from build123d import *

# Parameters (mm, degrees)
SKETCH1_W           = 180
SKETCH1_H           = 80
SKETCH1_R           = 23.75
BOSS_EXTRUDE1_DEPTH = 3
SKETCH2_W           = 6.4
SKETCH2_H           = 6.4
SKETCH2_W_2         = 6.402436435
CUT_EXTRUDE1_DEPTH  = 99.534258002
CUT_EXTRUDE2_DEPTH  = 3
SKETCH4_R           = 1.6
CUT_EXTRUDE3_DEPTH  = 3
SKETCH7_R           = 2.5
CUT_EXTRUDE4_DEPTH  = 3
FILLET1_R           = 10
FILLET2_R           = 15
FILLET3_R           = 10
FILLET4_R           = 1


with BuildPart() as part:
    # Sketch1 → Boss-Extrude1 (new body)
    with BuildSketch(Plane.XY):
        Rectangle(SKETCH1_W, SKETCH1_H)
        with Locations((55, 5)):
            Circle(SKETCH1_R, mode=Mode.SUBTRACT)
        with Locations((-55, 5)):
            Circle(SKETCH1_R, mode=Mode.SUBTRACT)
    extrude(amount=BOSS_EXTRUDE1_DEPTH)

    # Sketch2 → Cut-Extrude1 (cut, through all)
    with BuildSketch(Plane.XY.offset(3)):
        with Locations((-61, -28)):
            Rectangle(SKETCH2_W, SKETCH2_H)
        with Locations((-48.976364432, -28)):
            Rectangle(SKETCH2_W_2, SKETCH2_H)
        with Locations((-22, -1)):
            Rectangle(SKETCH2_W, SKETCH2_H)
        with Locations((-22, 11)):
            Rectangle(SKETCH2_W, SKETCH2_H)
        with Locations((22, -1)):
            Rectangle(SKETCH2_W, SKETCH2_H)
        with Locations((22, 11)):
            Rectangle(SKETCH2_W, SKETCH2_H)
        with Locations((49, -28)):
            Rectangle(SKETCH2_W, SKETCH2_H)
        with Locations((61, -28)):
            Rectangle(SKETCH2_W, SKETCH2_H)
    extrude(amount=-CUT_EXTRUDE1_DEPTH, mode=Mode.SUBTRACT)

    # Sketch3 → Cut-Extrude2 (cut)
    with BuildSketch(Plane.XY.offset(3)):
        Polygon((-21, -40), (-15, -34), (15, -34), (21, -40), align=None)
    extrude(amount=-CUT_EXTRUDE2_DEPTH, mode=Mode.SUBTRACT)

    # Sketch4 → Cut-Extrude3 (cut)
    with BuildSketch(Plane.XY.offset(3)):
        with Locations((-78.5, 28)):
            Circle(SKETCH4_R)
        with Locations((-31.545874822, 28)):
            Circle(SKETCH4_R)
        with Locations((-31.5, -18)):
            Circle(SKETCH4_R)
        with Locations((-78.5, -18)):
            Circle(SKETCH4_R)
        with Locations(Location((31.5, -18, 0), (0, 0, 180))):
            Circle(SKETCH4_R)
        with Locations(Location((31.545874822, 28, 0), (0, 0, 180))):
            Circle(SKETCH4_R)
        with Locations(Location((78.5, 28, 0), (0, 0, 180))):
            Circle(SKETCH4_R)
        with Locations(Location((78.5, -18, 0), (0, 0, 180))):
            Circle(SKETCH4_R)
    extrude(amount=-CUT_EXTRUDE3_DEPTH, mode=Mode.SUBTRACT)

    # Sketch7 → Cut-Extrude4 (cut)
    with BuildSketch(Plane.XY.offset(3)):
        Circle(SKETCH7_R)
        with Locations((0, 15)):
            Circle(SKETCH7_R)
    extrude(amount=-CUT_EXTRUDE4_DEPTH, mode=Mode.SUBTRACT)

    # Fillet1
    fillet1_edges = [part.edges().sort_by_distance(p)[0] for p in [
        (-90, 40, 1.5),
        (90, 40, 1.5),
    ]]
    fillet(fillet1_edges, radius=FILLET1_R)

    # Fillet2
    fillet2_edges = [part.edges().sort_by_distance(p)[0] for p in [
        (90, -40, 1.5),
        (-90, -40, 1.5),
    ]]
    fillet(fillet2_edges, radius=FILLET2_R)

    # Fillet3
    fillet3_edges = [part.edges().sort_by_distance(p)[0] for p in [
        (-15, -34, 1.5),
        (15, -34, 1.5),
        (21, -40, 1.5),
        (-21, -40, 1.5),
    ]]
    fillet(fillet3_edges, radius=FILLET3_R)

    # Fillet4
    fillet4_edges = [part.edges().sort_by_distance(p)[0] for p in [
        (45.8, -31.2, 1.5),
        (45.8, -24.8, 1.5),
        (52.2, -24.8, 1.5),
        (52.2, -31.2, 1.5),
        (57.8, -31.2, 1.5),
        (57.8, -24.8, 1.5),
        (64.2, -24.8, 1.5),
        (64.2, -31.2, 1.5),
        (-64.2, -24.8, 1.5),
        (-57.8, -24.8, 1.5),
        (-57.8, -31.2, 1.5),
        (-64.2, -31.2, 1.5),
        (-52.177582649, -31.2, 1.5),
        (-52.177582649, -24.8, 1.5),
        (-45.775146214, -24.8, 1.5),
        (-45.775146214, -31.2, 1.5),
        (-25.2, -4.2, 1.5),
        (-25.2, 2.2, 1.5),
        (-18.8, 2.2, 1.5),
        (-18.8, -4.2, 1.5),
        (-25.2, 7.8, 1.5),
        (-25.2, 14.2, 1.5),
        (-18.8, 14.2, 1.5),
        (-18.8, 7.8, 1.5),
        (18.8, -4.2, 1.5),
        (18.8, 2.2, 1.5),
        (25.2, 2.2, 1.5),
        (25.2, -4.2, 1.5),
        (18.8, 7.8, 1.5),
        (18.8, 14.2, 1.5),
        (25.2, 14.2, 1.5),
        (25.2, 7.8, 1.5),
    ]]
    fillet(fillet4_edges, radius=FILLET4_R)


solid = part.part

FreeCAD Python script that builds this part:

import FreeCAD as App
import Part
import Sketcher
from FreeCAD import Vector
Q = App.Units.Quantity


def edges_at(feature, points):
    """Names of the edges that pass closest to the given points."""
    edges = feature.Shape.Edges
    near = lambda p: min(range(len(edges)), key=lambda i: edges[i].distToShape(Part.Vertex(*p))[0])
    return sorted({f"Edge{near(p) + 1}" for p in points})

doc = App.newDocument("Part")
params = doc.addObject("Spreadsheet::Sheet", "Params")
for row, (alias, value) in enumerate([
    ("sketch1_diameter", "47.5 mm"),
    ("sketch1_width", "180 mm"),
    ("sketch1_height", "80 mm"),
    ("pad1_length", "3 mm"),
    ("sketch2_width", "6.4 mm"),
    ("sketch3_width", "42 mm"),
    ("sketch3_width2", "30 mm"),
    ("pocket2_length", "3 mm"),
    ("sketch4_diameter", "3.2 mm"),
    ("pocket3_length", "3 mm"),
    ("sketch5_diameter", "5 mm"),
    ("pocket4_length", "3 mm"),
    ("fillet_radius", "10 mm"),
    ("fillet2_radius", "15 mm"),
    ("fillet3_radius", "10 mm"),
    ("fillet4_radius", "1 mm"),
], start=1):
    params.set(f"A{row}", alias)
    params.set(f"B{row}", "=" + value)
    params.setAlias(f"B{row}", alias)

body = doc.addObject("PartDesign::Body", "Body")

# Sketch on XY plane
sketch1 = doc.addObject("Sketcher::SketchObject", "Sketch")
body.addObject(sketch1)
sketch1.AttachmentSupport = (doc.XY_Plane, [""])
sketch1.MapMode = "FlatFace"
sketch1.addGeometry([
    Part.LineSegment(Vector(-90, 40, 0), Vector(-90, -40, 0)),  # 0
    Part.LineSegment(Vector(-90, -40, 0), Vector(90, -40, 0)),  # 1
    Part.LineSegment(Vector(90, -40, 0), Vector(90, 40, 0)),  # 2
    Part.LineSegment(Vector(90, 40, 0), Vector(-90, 40, 0)),  # 3
    Part.Circle(Vector(-55, 5, 0), Vector(0, 0, 1), 24),  # 4
    Part.Circle(Vector(55, 5, 0), Vector(0, 0, 1), 24),  # 5
], False)
sketch1.addConstraint([
    Sketcher.Constraint("Coincident", 0, 2, 1, 1),
    Sketcher.Constraint("Coincident", 1, 2, 2, 1),
    Sketcher.Constraint("Coincident", 2, 2, 3, 1),
    Sketcher.Constraint("Coincident", 3, 2, 0, 1),
    Sketcher.Constraint("Vertical", 0),
    Sketcher.Constraint("Horizontal", 1),
    Sketcher.Constraint("Vertical", 2),
    Sketcher.Constraint("Horizontal", 3),
    Sketcher.Constraint("Equal", 4, 5),
    Sketcher.Constraint("Symmetric", 0, 2, 2, 2, -1, 1),
    Sketcher.Constraint("Symmetric", 4, 3, 5, 3, -2),
    Sketcher.Constraint("Diameter", 4, Q("47.5 mm")),
    Sketcher.Constraint("DistanceX", 1, 1, 1, 2, Q("180 mm")),
    Sketcher.Constraint("DistanceY", 0, 2, 0, 1, Q("80 mm")),
    Sketcher.Constraint("DistanceX", 4, 3, -1, 1, Q("55 mm")),
    Sketcher.Constraint("DistanceY", -1, 1, 4, 3, Q("5 mm")),
])
sketch1.setExpression("Constraints[11]", "Params.sketch1_diameter")
sketch1.setExpression("Constraints[12]", "Params.sketch1_width")
sketch1.setExpression("Constraints[13]", "Params.sketch1_height")
pad1 = doc.addObject("PartDesign::Pad", "Pad")
body.addObject(pad1)
pad1.Profile = sketch1
pad1.setExpression("Length", "Params.pad1_length")

# Sketch on XY plane
sketch2 = doc.addObject("Sketcher::SketchObject", "Sketch001")
body.addObject(sketch2)
sketch2.AttachmentSupport = (doc.XY_Plane, [""])
sketch2.MapMode = "FlatFace"
sketch2.AttachmentOffset = App.Placement(Vector(0, 0, 3), App.Rotation())
sketch2.addGeometry([
    Part.LineSegment(Vector(-64, -25, 0), Vector(-64, -31, 0)),  # 0
    Part.LineSegment(Vector(-64, -31, 0), Vector(-58, -31, 0)),  # 1
    Part.LineSegment(Vector(-58, -31, 0), Vector(-58, -25, 0)),  # 2
    Part.LineSegment(Vector(-58, -25, 0), Vector(-64, -25, 0)),  # 3
    Part.LineSegment(Vector(-52, -25, 0), Vector(-52, -31, 0)),  # 4
    Part.LineSegment(Vector(-52, -31, 0), Vector(-46, -31, 0)),  # 5
    Part.LineSegment(Vector(-46, -31, 0), Vector(-46, -25, 0)),  # 6
    Part.LineSegment(Vector(-46, -25, 0), Vector(-52, -25, 0)),  # 7
    Part.LineSegment(Vector(-25, 2, 0), Vector(-25, -4, 0)),  # 8
    Part.LineSegment(Vector(-25, -4, 0), Vector(-19, -4, 0)),  # 9
    Part.LineSegment(Vector(-19, -4, 0), Vector(-19, 2, 0)),  # 10
    Part.LineSegment(Vector(-19, 2, 0), Vector(-25, 2, 0)),  # 11
    Part.LineSegment(Vector(-25, 14, 0), Vector(-25, 8, 0)),  # 12
    Part.LineSegment(Vector(-25, 8, 0), Vector(-19, 8, 0)),  # 13
    Part.LineSegment(Vector(-19, 8, 0), Vector(-19, 14, 0)),  # 14
    Part.LineSegment(Vector(-19, 14, 0), Vector(-25, 14, 0)),  # 15
    Part.LineSegment(Vector(19, 2, 0), Vector(19, -4, 0)),  # 16
    Part.LineSegment(Vector(19, -4, 0), Vector(25, -4, 0)),  # 17
    Part.LineSegment(Vector(25, -4, 0), Vector(25, 2, 0)),  # 18
    Part.LineSegment(Vector(25, 2, 0), Vector(19, 2, 0)),  # 19
    Part.LineSegment(Vector(19, 14, 0), Vector(19, 8, 0)),  # 20
    Part.LineSegment(Vector(19, 8, 0), Vector(25, 8, 0)),  # 21
    Part.LineSegment(Vector(25, 8, 0), Vector(25, 14, 0)),  # 22
    Part.LineSegment(Vector(25, 14, 0), Vector(19, 14, 0)),  # 23
    Part.LineSegment(Vector(46, -25, 0), Vector(46, -31, 0)),  # 24
    Part.LineSegment(Vector(46, -31, 0), Vector(52, -31, 0)),  # 25
    Part.LineSegment(Vector(52, -31, 0), Vector(52, -25, 0)),  # 26
    Part.LineSegment(Vector(52, -25, 0), Vector(46, -25, 0)),  # 27
    Part.LineSegment(Vector(58, -25, 0), Vector(58, -31, 0)),  # 28
    Part.LineSegment(Vector(58, -31, 0), Vector(64, -31, 0)),  # 29
    Part.LineSegment(Vector(64, -31, 0), Vector(64, -25, 0)),  # 30
    Part.LineSegment(Vector(64, -25, 0), Vector(58, -25, 0)),  # 31
], False)
sketch2.addConstraint([
    Sketcher.Constraint("Coincident", 0, 2, 1, 1),
    Sketcher.Constraint("Coincident", 1, 2, 2, 1),
    Sketcher.Constraint("Coincident", 2, 2, 3, 1),
    Sketcher.Constraint("Coincident", 3, 2, 0, 1),
    Sketcher.Constraint("Coincident", 4, 2, 5, 1),
    Sketcher.Constraint("Coincident", 5, 2, 6, 1),
    Sketcher.Constraint("Coincident", 6, 2, 7, 1),
    Sketcher.Constraint("Coincident", 7, 2, 4, 1),
    Sketcher.Constraint("Coincident", 8, 2, 9, 1),
    Sketcher.Constraint("Coincident", 9, 2, 10, 1),
    Sketcher.Constraint("Coincident", 10, 2, 11, 1),
    Sketcher.Constraint("Coincident", 11, 2, 8, 1),
    Sketcher.Constraint("Coincident", 12, 2, 13, 1),
    Sketcher.Constraint("Coincident", 13, 2, 14, 1),
    Sketcher.Constraint("Coincident", 14, 2, 15, 1),
    Sketcher.Constraint("Coincident", 15, 2, 12, 1),
    Sketcher.Constraint("Coincident", 16, 2, 17, 1),
    Sketcher.Constraint("Coincident", 17, 2, 18, 1),
    Sketcher.Constraint("Coincident", 18, 2, 19, 1),
    Sketcher.Constraint("Coincident", 19, 2, 16, 1),
    Sketcher.Constraint("Coincident", 20, 2, 21, 1),
    Sketcher.Constraint("Coincident", 21, 2, 22, 1),
    Sketcher.Constraint("Coincident", 22, 2, 23, 1),
    Sketcher.Constraint("Coincident", 23, 2, 20, 1),
    Sketcher.Constraint("Coincident", 24, 2, 25, 1),
    Sketcher.Constraint("Coincident", 25, 2, 26, 1),
    Sketcher.Constraint("Coincident", 26, 2, 27, 1),
    Sketcher.Constraint("Coincident", 27, 2, 24, 1),
    Sketcher.Constraint("Coincident", 28, 2, 29, 1),
    Sketcher.Constraint("Coincident", 29, 2, 30, 1),
    Sketcher.Constraint("Coincident", 30, 2, 31, 1),
    Sketcher.Constraint("Coincident", 31, 2, 28, 1),
    Sketcher.Constraint("Vertical", 0),
    Sketcher.Constraint("Horizontal", 1),
    Sketcher.Constraint("Vertical", 2),
    Sketcher.Constraint("Horizontal", 3),
    Sketcher.Constraint("Vertical", 4),
    Sketcher.Constraint("Horizontal", 5),
    Sketcher.Constraint("Vertical", 6),
    Sketcher.Constraint("Horizontal", 7),
    Sketcher.Constraint("Vertical", 8),
    Sketcher.Constraint("Horizontal", 9),
    Sketcher.Constraint("Vertical", 10),
    Sketcher.Constraint("Horizontal", 11),
    Sketcher.Constraint("Vertical", 12),
    Sketcher.Constraint("Horizontal", 13),
    Sketcher.Constraint("Vertical", 14),
    Sketcher.Constraint("Horizontal", 15),
    Sketcher.Constraint("Vertical", 16),
    Sketcher.Constraint("Horizontal", 17),
    Sketcher.Constraint("Vertical", 18),
    Sketcher.Constraint("Horizontal", 19),
    Sketcher.Constraint("Vertical", 20),
    Sketcher.Constraint("Horizontal", 21),
    Sketcher.Constraint("Vertical", 22),
    Sketcher.Constraint("Horizontal", 23),
    Sketcher.Constraint("Vertical", 24),
    Sketcher.Constraint("Horizontal", 25),
    Sketcher.Constraint("Vertical", 26),
    Sketcher.Constraint("Horizontal", 27),
    Sketcher.Constraint("Vertical", 28),
    Sketcher.Constraint("Horizontal", 29),
    Sketcher.Constraint("Vertical", 30),
    Sketcher.Constraint("Horizontal", 31),
    Sketcher.Constraint("Symmetric", 9, 2, 16, 2, -2),
    Sketcher.Constraint("Symmetric", 11, 2, 18, 2, -2),
    Sketcher.Constraint("Symmetric", 13, 2, 20, 2, -2),
    Sketcher.Constraint("Symmetric", 15, 2, 22, 2, -2),
    Sketcher.Constraint("Symmetric", 1, 2, 28, 2, -2),
    Sketcher.Constraint("Symmetric", 3, 2, 30, 2, -2),
    Sketcher.Constraint("Horizontal", 1, 2, 4, 2),
    Sketcher.Constraint("Horizontal", 3, 2, 6, 2),
    Sketcher.Constraint("Horizontal", 5, 2, 24, 2),
    Sketcher.Constraint("Horizontal", 7, 2, 26, 2),
    Sketcher.Constraint("Vertical", 11, 2, 12, 2),
    Sketcher.Constraint("Vertical", 10, 2, 13, 2),
    Sketcher.Constraint("Equal", 3, 9),
    Sketcher.Constraint("Equal", 23, 25),
    Sketcher.Constraint("Equal", 31, 0),
    Sketcher.Constraint("Equal", 6, 8),
    Sketcher.Constraint("Equal", 10, 12),
    Sketcher.Constraint("DistanceX", 1, 1, 1, 2, Q("6.4 mm")),
    Sketcher.Constraint("DistanceY", 5, 2, 8, 2, Q("27 mm")),
    Sketcher.Constraint("DistanceY", 8, 2, 12, 2, Q("12 mm")),
    Sketcher.Constraint("DistanceX", 8, 2, 16, 2, Q("44 mm")),
    Sketcher.Constraint("DistanceX", 16, 2, 24, 2, Q("27 mm")),
    Sketcher.Constraint("DistanceX", 24, 2, 28, 2, Q("12 mm")),
    Sketcher.Constraint("DistanceY", 0, 2, -1, 1, Q("31.2 mm")),
    Sketcher.Constraint("DistanceX", 5, 1, 5, 2, Q("6.402436 mm")),
    Sketcher.Constraint("DistanceX", 4, 2, -1, 1, Q("52.177583 mm")),
])
sketch2.setExpression("Constraints[81]", "Params.sketch2_width")
pocket1 = doc.addObject("PartDesign::Pocket", "Pocket")
body.addObject(pocket1)
pocket1.Profile = sketch2
pocket1.Type = "ThroughAll"

# Sketch on XY plane
sketch3 = doc.addObject("Sketcher::SketchObject", "Sketch002")
body.addObject(sketch3)
sketch3.AttachmentSupport = (doc.XY_Plane, [""])
sketch3.MapMode = "FlatFace"
sketch3.AttachmentOffset = App.Placement(Vector(0, 0, 3), App.Rotation())
sketch3.addGeometry([
    Part.LineSegment(Vector(-15, -34, 0), Vector(-21, -40, 0)),
    Part.LineSegment(Vector(-21, -40, 0), Vector(21, -40, 0)),
    Part.LineSegment(Vector(21, -40, 0), Vector(15, -34, 0)),
    Part.LineSegment(Vector(15, -34, 0), Vector(-15, -34, 0)),
], False)
sketch3.addConstraint([
    Sketcher.Constraint("Coincident", 0, 2, 1, 1),
    Sketcher.Constraint("Coincident", 1, 2, 2, 1),
    Sketcher.Constraint("Coincident", 2, 2, 3, 1),
    Sketcher.Constraint("Coincident", 3, 2, 0, 1),
    Sketcher.Constraint("Horizontal", 1),
    Sketcher.Constraint("Horizontal", 3),
    Sketcher.Constraint("Perpendicular", 0, 2),
    Sketcher.Constraint("Equal", 0, 2),
    Sketcher.Constraint("DistanceX", 1, 1, 1, 2, Q("42 mm")),
    Sketcher.Constraint("DistanceX", 3, 2, 3, 1, Q("30 mm")),
    Sketcher.Constraint("DistanceX", 0, 2, -1, 1, Q("21 mm")),
    Sketcher.Constraint("DistanceY", 0, 2, -1, 1, Q("40 mm")),
])
sketch3.setExpression("Constraints[8]", "Params.sketch3_width")
sketch3.setExpression("Constraints[9]", "Params.sketch3_width2")
pocket2 = doc.addObject("PartDesign::Pocket", "Pocket001")
body.addObject(pocket2)
pocket2.Profile = sketch3
pocket2.setExpression("Length", "Params.pocket2_length")

# Sketch on XY plane
sketch4 = doc.addObject("Sketcher::SketchObject", "Sketch003")
body.addObject(sketch4)
sketch4.AttachmentSupport = (doc.XY_Plane, [""])
sketch4.MapMode = "FlatFace"
sketch4.AttachmentOffset = App.Placement(Vector(0, 0, 3), App.Rotation())
sketch4.addGeometry([
    Part.Circle(Vector(-78.5, 28, 0), Vector(0, 0, 1), 1.6),  # 0
    Part.Circle(Vector(-31.5, 28, 0), Vector(0, 0, 1), 1.6),  # 1
    Part.Circle(Vector(-31.5, -18, 0), Vector(0, 0, 1), 1.6),  # 2
    Part.Circle(Vector(-78.5, -18, 0), Vector(0, 0, 1), 1.6),  # 3
    Part.Circle(Vector(31.5, -18, 0), Vector(0, 0, 1), 1.6),  # 4
    Part.Circle(Vector(31.5, 28, 0), Vector(0, 0, 1), 1.6),  # 5
    Part.Circle(Vector(78.5, 28, 0), Vector(0, 0, 1), 1.6),  # 6
    Part.Circle(Vector(78.5, -18, 0), Vector(0, 0, 1), 1.6),  # 7
], False)
sketch4.addConstraint([
    Sketcher.Constraint("Equal", 0, 1),
    Sketcher.Constraint("Equal", 1, 2),
    Sketcher.Constraint("Equal", 2, 3),
    Sketcher.Constraint("Equal", 3, 4),
    Sketcher.Constraint("Equal", 4, 5),
    Sketcher.Constraint("Equal", 5, 6),
    Sketcher.Constraint("Equal", 6, 7),
    Sketcher.Constraint("Symmetric", 2, 3, 4, 3, -2),
    Sketcher.Constraint("Symmetric", 1, 3, 5, 3, -2),
    Sketcher.Constraint("Symmetric", 0, 3, 6, 3, -2),
    Sketcher.Constraint("Symmetric", 3, 3, 7, 3, -2),
    Sketcher.Constraint("Horizontal", 0, 3, 1, 3),
    Sketcher.Constraint("Horizontal", 2, 3, 3, 3),
    Sketcher.Constraint("Vertical", 0, 3, 3, 3),
    Sketcher.Constraint("Diameter", 0, Q("3.2 mm")),
    Sketcher.Constraint("DistanceY", -1, 1, 0, 3, Q("28 mm")),
    Sketcher.Constraint("DistanceY", 2, 3, -1, 1, Q("18 mm")),
    Sketcher.Constraint("DistanceX", 0, 3, 2, 3, Q("47 mm")),
    Sketcher.Constraint("DistanceX", 2, 3, 4, 3, Q("63 mm")),
    Sketcher.Constraint("DistanceX", 1, 3, 5, 3, Q("63.09175 mm")),
])
sketch4.setExpression("Constraints[14]", "Params.sketch4_diameter")
pocket3 = doc.addObject("PartDesign::Pocket", "Pocket002")
body.addObject(pocket3)
pocket3.Profile = sketch4
pocket3.setExpression("Length", "Params.pocket3_length")

# Sketch on XY plane
sketch5 = doc.addObject("Sketcher::SketchObject", "Sketch004")
body.addObject(sketch5)
sketch5.AttachmentSupport = (doc.XY_Plane, [""])
sketch5.MapMode = "FlatFace"
sketch5.AttachmentOffset = App.Placement(Vector(0, 0, 3), App.Rotation())
sketch5.addGeometry([
    Part.Circle(Vector(0, 0, 0), Vector(0, 0, 1), 2.5),
    Part.Circle(Vector(0, 15, 0), Vector(0, 0, 1), 2.5),
], False)
sketch5.addConstraint([
    Sketcher.Constraint("Coincident", 0, 3, -1, 1),
    Sketcher.Constraint("Equal", 0, 1),
    Sketcher.Constraint("PointOnObject", 1, 3, -2),
    Sketcher.Constraint("Diameter", 0, Q("5 mm")),
    Sketcher.Constraint("DistanceY", -1, 1, 1, 3, Q("15 mm")),
])
sketch5.setExpression("Constraints[3]", "Params.sketch5_diameter")
pocket4 = doc.addObject("PartDesign::Pocket", "Pocket003")
body.addObject(pocket4)
pocket4.Profile = sketch5
pocket4.setExpression("Length", "Params.pocket4_length")
doc.recompute()

fillet = doc.addObject("PartDesign::Fillet", "Fillet")
body.addObject(fillet)
fillet.Base = (pocket4, edges_at(pocket4, [(-90, 40, 1.5), (90, 40, 1.5)]))
fillet.setExpression("Radius", "Params.fillet_radius")
doc.recompute()

fillet2 = doc.addObject("PartDesign::Fillet", "Fillet001")
body.addObject(fillet2)
fillet2.Base = (fillet, edges_at(fillet, [(90, -40, 1.5), (-90, -40, 1.5)]))
fillet2.setExpression("Radius", "Params.fillet2_radius")
doc.recompute()

fillet3 = doc.addObject("PartDesign::Fillet", "Fillet002")
body.addObject(fillet3)
fillet3.Base = (fillet2, edges_at(fillet2, [
    (-15, -34, 1.5),
    (15, -34, 1.5),
    (21, -40, 1.5),
    (-21, -40, 1.5),
]))
fillet3.setExpression("Radius", "Params.fillet3_radius")
doc.recompute()

fillet4 = doc.addObject("PartDesign::Fillet", "Fillet003")
body.addObject(fillet4)
fillet4.Base = (fillet3, edges_at(fillet3, [
    (45.8, -31.2, 1.5),
    (45.8, -24.8, 1.5),
    (52.2, -24.8, 1.5),
    (52.2, -31.2, 1.5),
    (57.8, -31.2, 1.5),
    (57.8, -24.8, 1.5),
    (64.2, -24.8, 1.5),
    (64.2, -31.2, 1.5),
    (-64.2, -24.8, 1.5),
    (-57.8, -24.8, 1.5),
    (-57.8, -31.2, 1.5),
    (-64.2, -31.2, 1.5),
    (-52.178, -31.2, 1.5),
    (-52.178, -24.8, 1.5),
    (-45.775, -24.8, 1.5),
    (-45.775, -31.2, 1.5),
    (-25.2, -4.2, 1.5),
    (-25.2, 2.2, 1.5),
    (-18.8, 2.2, 1.5),
    (-18.8, -4.2, 1.5),
    (-25.2, 7.8, 1.5),
    (-25.2, 14.2, 1.5),
    (-18.8, 14.2, 1.5),
    (-18.8, 7.8, 1.5),
    (18.8, -4.2, 1.5),
    (18.8, 2.2, 1.5),
    (25.2, 2.2, 1.5),
    (25.2, -4.2, 1.5),
    (18.8, 7.8, 1.5),
    (18.8, 14.2, 1.5),
    (25.2, 14.2, 1.5),
    (25.2, 7.8, 1.5),
]))
fillet4.setExpression("Radius", "Params.fillet4_radius")

doc.recompute()
